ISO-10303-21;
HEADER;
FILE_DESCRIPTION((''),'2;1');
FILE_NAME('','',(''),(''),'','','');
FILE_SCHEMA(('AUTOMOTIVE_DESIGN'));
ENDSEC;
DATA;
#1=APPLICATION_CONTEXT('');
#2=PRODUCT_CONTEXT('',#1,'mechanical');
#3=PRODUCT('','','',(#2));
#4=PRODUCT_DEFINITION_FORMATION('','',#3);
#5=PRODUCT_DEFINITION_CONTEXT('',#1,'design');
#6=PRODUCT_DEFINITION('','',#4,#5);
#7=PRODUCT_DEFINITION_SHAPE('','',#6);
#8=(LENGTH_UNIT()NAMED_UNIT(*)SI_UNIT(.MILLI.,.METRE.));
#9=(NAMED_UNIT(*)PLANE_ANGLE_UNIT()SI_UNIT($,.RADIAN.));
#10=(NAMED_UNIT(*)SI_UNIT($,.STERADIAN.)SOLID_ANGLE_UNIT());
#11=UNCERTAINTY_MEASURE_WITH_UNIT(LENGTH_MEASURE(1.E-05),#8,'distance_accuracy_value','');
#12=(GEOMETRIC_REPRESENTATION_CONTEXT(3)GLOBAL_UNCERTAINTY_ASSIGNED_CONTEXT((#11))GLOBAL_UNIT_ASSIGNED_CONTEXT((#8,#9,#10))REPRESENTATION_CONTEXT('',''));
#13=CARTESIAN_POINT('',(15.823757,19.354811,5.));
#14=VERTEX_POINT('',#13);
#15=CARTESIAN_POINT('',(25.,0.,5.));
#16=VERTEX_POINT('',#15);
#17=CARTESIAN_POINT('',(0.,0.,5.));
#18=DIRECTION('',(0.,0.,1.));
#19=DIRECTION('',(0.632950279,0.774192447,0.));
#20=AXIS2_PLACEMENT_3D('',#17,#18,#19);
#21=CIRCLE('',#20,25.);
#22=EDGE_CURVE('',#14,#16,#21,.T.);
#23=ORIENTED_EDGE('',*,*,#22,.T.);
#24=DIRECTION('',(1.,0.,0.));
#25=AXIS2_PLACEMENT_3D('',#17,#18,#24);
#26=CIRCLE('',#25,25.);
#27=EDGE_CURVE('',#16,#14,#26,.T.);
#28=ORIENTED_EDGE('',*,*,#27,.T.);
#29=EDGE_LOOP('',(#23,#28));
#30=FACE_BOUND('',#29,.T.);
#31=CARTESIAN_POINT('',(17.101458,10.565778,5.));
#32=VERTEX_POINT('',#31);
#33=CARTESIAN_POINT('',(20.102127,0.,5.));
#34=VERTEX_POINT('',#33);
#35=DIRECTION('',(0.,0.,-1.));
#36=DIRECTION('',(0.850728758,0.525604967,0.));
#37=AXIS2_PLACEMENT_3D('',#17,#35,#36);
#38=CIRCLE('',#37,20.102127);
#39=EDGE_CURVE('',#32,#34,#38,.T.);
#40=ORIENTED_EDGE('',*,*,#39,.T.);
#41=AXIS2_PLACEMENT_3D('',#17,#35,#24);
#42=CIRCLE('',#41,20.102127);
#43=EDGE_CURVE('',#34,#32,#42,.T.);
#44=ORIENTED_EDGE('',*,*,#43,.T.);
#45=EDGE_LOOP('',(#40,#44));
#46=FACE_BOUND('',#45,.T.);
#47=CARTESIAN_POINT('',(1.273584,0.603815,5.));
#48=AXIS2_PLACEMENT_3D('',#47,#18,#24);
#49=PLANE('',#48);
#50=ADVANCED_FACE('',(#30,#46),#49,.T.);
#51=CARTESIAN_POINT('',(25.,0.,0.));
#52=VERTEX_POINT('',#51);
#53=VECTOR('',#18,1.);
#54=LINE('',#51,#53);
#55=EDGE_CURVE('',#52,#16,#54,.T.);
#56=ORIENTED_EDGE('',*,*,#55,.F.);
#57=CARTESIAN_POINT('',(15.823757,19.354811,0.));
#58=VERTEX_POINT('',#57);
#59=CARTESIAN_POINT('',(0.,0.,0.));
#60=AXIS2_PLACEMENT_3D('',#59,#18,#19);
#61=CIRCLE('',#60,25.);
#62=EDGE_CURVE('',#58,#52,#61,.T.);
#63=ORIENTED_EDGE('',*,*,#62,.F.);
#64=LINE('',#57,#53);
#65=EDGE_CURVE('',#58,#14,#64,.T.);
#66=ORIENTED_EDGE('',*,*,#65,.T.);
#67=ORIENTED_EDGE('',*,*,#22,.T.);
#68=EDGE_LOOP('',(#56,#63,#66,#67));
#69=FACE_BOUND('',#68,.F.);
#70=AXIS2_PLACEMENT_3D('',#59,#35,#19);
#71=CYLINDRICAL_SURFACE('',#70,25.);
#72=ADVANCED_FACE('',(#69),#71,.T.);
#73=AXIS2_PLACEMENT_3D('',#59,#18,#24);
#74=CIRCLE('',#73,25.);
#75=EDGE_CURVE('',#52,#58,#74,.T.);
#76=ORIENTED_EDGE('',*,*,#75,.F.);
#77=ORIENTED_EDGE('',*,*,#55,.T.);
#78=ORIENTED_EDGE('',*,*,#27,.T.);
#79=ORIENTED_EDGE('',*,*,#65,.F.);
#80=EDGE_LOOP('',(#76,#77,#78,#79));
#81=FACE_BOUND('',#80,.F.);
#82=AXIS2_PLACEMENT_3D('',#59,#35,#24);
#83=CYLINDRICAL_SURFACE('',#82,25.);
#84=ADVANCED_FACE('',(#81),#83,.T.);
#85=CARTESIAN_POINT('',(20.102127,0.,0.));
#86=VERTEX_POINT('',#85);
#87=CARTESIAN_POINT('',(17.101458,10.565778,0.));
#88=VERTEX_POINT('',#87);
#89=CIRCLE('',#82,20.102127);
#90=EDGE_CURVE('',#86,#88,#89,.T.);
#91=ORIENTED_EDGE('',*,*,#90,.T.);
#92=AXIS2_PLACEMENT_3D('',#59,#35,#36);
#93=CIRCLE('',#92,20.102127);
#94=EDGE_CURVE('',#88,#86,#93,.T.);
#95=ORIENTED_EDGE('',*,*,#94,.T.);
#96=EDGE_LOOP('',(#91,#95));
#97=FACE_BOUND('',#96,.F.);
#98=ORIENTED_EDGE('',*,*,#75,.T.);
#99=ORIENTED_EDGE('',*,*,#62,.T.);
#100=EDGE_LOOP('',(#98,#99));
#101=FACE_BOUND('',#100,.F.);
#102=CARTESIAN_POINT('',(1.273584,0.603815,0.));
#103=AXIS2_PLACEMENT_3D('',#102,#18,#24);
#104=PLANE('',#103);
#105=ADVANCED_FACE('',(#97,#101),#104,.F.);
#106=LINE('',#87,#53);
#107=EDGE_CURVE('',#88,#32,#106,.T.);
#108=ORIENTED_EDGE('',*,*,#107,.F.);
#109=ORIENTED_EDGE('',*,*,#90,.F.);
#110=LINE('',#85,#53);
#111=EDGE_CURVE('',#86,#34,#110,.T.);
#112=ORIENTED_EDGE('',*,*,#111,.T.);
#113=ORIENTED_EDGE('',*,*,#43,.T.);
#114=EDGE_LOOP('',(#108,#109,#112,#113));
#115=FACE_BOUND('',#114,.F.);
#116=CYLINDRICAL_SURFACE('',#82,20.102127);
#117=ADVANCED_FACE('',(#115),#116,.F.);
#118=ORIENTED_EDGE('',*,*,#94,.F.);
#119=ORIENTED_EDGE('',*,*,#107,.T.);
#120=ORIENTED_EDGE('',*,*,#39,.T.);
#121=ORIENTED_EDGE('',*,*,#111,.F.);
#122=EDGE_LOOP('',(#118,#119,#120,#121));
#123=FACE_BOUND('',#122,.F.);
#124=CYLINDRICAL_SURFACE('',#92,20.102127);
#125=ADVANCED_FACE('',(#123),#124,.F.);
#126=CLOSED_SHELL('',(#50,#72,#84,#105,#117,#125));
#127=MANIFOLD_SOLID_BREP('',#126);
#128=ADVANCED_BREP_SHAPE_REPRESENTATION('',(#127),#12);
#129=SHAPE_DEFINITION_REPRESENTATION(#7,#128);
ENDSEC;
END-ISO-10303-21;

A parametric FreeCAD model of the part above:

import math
import FreeCAD as App
import Part
import Sketcher
from FreeCAD import Vector

doc = App.newDocument("Part")
params = doc.addObject("Spreadsheet::Sheet", "Params")
for row, (alias, value) in enumerate([
    ("sketch1_radius", "25 mm"),
    ("pad1_length", "5 mm"),
], start=1):
    params.set(f"A{row}", alias)
    params.set(f"B{row}", "=" + value)
    params.setAlias(f"B{row}", alias)

body = doc.addObject("PartDesign::Body", "Body")

# Sketch on XY plane
sketch1 = body.newObject("Sketcher::SketchObject", "Sketch")
sketch1.AttachmentSupport = (doc.getObject("XY_Plane"), [""])
sketch1.MapMode = "FlatFace"
sketch1.addGeometry([
    Part.ArcOfCircle(Part.Circle(Vector(0, 0, 0), Vector(0, 0, 1), 25), math.radians(0), math.radians(51)),
    Part.ArcOfCircle(Part.Circle(Vector(0, 0, 0), Vector(0, 0, 1), 25), math.radians(51), math.radians(360)),
    Part.ArcOfCircle(Part.Circle(Vector(0, 0, 0), Vector(0, 0, 1), 20), math.radians(0), math.radians(32)),
    Part.ArcOfCircle(Part.Circle(Vector(0, 0, 0), Vector(0, 0, 1), 20), math.radians(32), math.radians(360)),
], False)
sketch1.addConstraint([
    Sketcher.Constraint("Tangent", 0, 1, 1, 2),
    Sketcher.Constraint("Coincident", 1, 1, 0, 2),
    Sketcher.Constraint("Tangent", 2, 1, 3, 2),
    Sketcher.Constraint("Coincident", 3, 1, 2, 2),
    Sketcher.Constraint("Coincident", 0, 3, -1, 1),
    Sketcher.Constraint("Coincident", 2, 3, -1, 1),
    Sketcher.Constraint("PointOnObject", 0, 1, -1),
    Sketcher.Constraint("PointOnObject", 2, 1, -1),
    Sketcher.Constraint("Radius", 0, 25.0),
    Sketcher.Constraint("Radius", 2, 20.102127),
    Sketcher.Constraint("DistanceX", 1, 1, 3, 1, 1.277701),
    Sketcher.Constraint("DistanceY", -1, 1, 1, 1, 19.354811),
])
sketch1.setExpression("Constraints[8]", "Params.sketch1_radius")
pad1 = body.newObject("PartDesign::Pad", "Pad")
pad1.Profile = sketch1
pad1.setExpression("Length", "Params.pad1_length")

doc.recompute()
